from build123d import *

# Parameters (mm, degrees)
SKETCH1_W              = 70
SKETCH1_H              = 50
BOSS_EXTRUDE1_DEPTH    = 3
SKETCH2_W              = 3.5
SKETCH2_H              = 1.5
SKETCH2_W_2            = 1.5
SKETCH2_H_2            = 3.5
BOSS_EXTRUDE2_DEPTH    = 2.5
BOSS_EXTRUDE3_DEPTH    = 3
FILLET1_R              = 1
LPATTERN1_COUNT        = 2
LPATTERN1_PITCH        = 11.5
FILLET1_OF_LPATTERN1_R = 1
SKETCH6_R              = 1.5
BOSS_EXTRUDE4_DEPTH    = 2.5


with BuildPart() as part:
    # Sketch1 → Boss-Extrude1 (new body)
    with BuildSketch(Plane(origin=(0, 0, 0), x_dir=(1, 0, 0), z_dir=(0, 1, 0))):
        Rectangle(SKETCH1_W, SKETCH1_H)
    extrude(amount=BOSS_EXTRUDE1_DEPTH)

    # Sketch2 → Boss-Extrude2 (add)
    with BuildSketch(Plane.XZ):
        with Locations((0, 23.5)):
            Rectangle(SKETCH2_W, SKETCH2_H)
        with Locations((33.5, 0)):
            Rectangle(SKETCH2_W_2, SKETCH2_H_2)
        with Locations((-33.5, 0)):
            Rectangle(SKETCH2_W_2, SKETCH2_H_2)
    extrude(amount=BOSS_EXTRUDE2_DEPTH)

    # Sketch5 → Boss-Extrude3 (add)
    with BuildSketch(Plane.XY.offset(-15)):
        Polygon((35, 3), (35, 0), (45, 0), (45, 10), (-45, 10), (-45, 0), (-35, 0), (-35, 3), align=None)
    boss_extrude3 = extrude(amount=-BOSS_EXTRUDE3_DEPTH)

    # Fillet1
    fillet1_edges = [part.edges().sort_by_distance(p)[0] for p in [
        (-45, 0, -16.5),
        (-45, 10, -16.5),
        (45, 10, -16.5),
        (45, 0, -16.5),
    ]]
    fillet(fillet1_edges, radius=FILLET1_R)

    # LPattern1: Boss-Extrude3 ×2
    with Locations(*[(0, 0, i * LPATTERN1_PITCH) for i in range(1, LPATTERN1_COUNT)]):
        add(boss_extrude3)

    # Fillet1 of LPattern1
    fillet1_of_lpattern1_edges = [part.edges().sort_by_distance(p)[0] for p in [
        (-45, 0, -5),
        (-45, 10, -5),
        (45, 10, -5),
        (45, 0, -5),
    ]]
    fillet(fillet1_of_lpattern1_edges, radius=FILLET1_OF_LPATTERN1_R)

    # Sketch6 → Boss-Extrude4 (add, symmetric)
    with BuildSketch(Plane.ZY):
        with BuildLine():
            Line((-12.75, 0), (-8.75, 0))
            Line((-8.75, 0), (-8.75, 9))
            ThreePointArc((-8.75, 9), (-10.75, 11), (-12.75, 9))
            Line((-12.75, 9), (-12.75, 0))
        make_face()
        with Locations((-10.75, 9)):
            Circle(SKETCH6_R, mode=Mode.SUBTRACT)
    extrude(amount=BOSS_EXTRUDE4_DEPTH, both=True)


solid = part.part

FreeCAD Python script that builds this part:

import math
import FreeCAD as App
import Part
import Sketcher
from FreeCAD import Vector


def edges_at(feature, points):
    """Names of the edges that pass closest to the given points."""
    edges = feature.Shape.Edges
    near = lambda p: min(range(len(edges)), key=lambda i: edges[i].distToShape(Part.Vertex(*p))[0])
    return sorted({f"Edge{near(p) + 1}" for p in points})

doc = App.newDocument("Part")
params = doc.addObject("Spreadsheet::Sheet", "Params")
for row, (alias, value) in enumerate([
    ("sketch1_width", "70 mm"),
    ("sketch1_height", "50 mm"),
    ("pad1_length", "3 mm"),
    ("sketch2_width", "3.5 mm"),
    ("sketch2_width2", "1.5 mm"),
    ("pad2_length", "2.5 mm"),
    ("sketch3_width", "10 mm"),
    ("sketch3_width2", "90 mm"),
    ("sketch3_height", "3 mm"),
    ("pad3_length", "3 mm"),
    ("fillet_radius", "1 mm"),
    ("linearpattern_pitch", "11.5 mm"),
    ("fillet2_radius", "1 mm"),
    ("sketch4_diameter", "3 mm"),
    ("sketch4_radius", "2 mm"),
    ("sketch4_width", "9 mm"),
    ("pad4_length", "5 mm"),
], start=1):
    params.set(f"A{row}", alias)
    params.set(f"B{row}", "=" + value)
    params.setAlias(f"B{row}", alias)

body = doc.addObject("PartDesign::Body", "Body")

# Sketch on XZ plane
sketch1 = doc.addObject("Sketcher::SketchObject", "Sketch")
body.addObject(sketch1)
sketch1.AttachmentSupport = (doc.XZ_Plane, [""])
sketch1.MapMode = "FlatFace"
sketch1.addGeometry(Part.LineSegment(Vector(-35, -25, 0), Vector(-35, 25, 0)), False)
sketch1.addGeometry(Part.LineSegment(Vector(-35, 25, 0), Vector(35, 25, 0)), False)
sketch1.addGeometry(Part.LineSegment(Vector(35, 25, 0), Vector(35, -25, 0)), False)
sketch1.addGeometry(Part.LineSegment(Vector(35, -25, 0), Vector(-35, -25, 0)), False)
sketch1.addConstraint(Sketcher.Constraint("Coincident", 0, 2, 1, 1))
sketch1.addConstraint(Sketcher.Constraint("Coincident", 1, 2, 2, 1))
sketch1.addConstraint(Sketcher.Constraint("Coincident", 2, 2, 3, 1))
sketch1.addConstraint(Sketcher.Constraint("Coincident", 3, 2, 0, 1))
sketch1.addConstraint(Sketcher.Constraint("Vertical", 0))
sketch1.addConstraint(Sketcher.Constraint("Horizontal", 1))
sketch1.addConstraint(Sketcher.Constraint("Vertical", 2))
sketch1.addConstraint(Sketcher.Constraint("Horizontal", 3))
sketch1.addConstraint(Sketcher.Constraint("Symmetric", 0, 2, 2, 2, -1, 1))
sketch1.addConstraint(Sketcher.Constraint("DistanceX", 1, 1, 1, 2, 70.0))
sketch1.addConstraint(Sketcher.Constraint("DistanceY", 0, 1, 0, 2, 50.0))
sketch1.setExpression("Constraints[9]", "Params.sketch1_width")
sketch1.setExpression("Constraints[10]", "Params.sketch1_height")
pad1 = doc.addObject("PartDesign::Pad", "Pad")
body.addObject(pad1)
pad1.Profile = sketch1
pad1.setExpression("Length", "Params.pad1_length")
pad1.Reversed = True

# Sketch on XZ plane
sketch2 = doc.addObject("Sketcher::SketchObject", "Sketch001")
body.addObject(sketch2)
sketch2.AttachmentSupport = (doc.XZ_Plane, [""])
sketch2.MapMode = "FlatFace"
sketch2.addGeometry(Part.LineSegment(Vector(-1.8, 24.2, 0), Vector(-1.8, 22.8, 0)), False)
sketch2.addGeometry(Part.LineSegment(Vector(-1.8, 22.8, 0), Vector(1.8, 22.8, 0)), False)
sketch2.addGeometry(Part.LineSegment(Vector(1.8, 22.8, 0), Vector(1.8, 24.2, 0)), False)
sketch2.addGeometry(Part.LineSegment(Vector(1.8, 24.2, 0), Vector(-1.8, 24.2, 0)), False)
sketch2.addGeometry(Part.LineSegment(Vector(32.8, 1.8, 0), Vector(32.8, -1.8, 0)), False)
sketch2.addGeometry(Part.LineSegment(Vector(32.8, -1.8, 0), Vector(34.2, -1.8, 0)), False)
sketch2.addGeometry(Part.LineSegment(Vector(34.2, -1.8, 0), Vector(34.2, 1.8, 0)), False)
sketch2.addGeometry(Part.LineSegment(Vector(34.2, 1.8, 0), Vector(32.8, 1.8, 0)), False)
sketch2.addGeometry(Part.LineSegment(Vector(-34.2, 1.8, 0), Vector(-34.2, -1.8, 0)), False)
sketch2.addGeometry(Part.LineSegment(Vector(-34.2, -1.8, 0), Vector(-32.8, -1.8, 0)), False)
sketch2.addGeometry(Part.LineSegment(Vector(-32.8, -1.8, 0), Vector(-32.8, 1.8, 0)), False)
sketch2.addGeometry(Part.LineSegment(Vector(-32.8, 1.8, 0), Vector(-34.2, 1.8, 0)), False)
sketch2.addConstraint(Sketcher.Constraint("Coincident", 0, 2, 1, 1))
sketch2.addConstraint(Sketcher.Constraint("Coincident", 1, 2, 2, 1))
sketch2.addConstraint(Sketcher.Constraint("Coincident", 2, 2, 3, 1))
sketch2.addConstraint(Sketcher.Constraint("Coincident", 3, 2, 0, 1))
sketch2.addConstraint(Sketcher.Constraint("Coincident", 4, 2, 5, 1))
sketch2.addConstraint(Sketcher.Constraint("Coincident", 5, 2, 6, 1))
sketch2.addConstraint(Sketcher.Constraint("Coincident", 6, 2, 7, 1))
sketch2.addConstraint(Sketcher.Constraint("Coincident", 7, 2, 4, 1))
sketch2.addConstraint(Sketcher.Constraint("Coincident", 8, 2, 9, 1))
sketch2.addConstraint(Sketcher.Constraint("Coincident", 9, 2, 10, 1))
sketch2.addConstraint(Sketcher.Constraint("Coincident", 10, 2, 11, 1))
sketch2.addConstraint(Sketcher.Constraint("Coincident", 11, 2, 8, 1))
sketch2.addConstraint(Sketcher.Constraint("Vertical", 0))
sketch2.addConstraint(Sketcher.Constraint("Horizontal", 1))
sketch2.addConstraint(Sketcher.Constraint("Vertical", 2))
sketch2.addConstraint(Sketcher.Constraint("Horizontal", 3))
sketch2.addConstraint(Sketcher.Constraint("Vertical", 4))
sketch2.addConstraint(Sketcher.Constraint("Horizontal", 5))
sketch2.addConstraint(Sketcher.Constraint("Vertical", 6))
sketch2.addConstraint(Sketcher.Constraint("Horizontal", 7))
sketch2.addConstraint(Sketcher.Constraint("Vertical", 8))
sketch2.addConstraint(Sketcher.Constraint("Horizontal", 9))
sketch2.addConstraint(Sketcher.Constraint("Vertical", 10))
sketch2.addConstraint(Sketcher.Constraint("Horizontal", 11))
sketch2.addConstraint(Sketcher.Constraint("Symmetric", 6, 2, 8, 2, -1, 1))
sketch2.addConstraint(Sketcher.Constraint("Symmetric", 4, 2, 10, 2, -1, 1))
sketch2.addConstraint(Sketcher.Constraint("Horizontal", 5, 2, 8, 2))
sketch2.addConstraint(Sketcher.Constraint("Equal", 11, 0))
sketch2.addConstraint(Sketcher.Constraint("Equal", 3, 4))
sketch2.addConstraint(Sketcher.Constraint("DistanceX", 1, 1, 1, 2, 3.5))
sketch2.addConstraint(Sketcher.Constraint("DistanceX", 5, 1, 5, 2, 1.5))
sketch2.addConstraint(Sketcher.Constraint("DistanceX", 1, 2, 4, 2, 31.0))
sketch2.addConstraint(Sketcher.Constraint("DistanceY", 4, 2, 2, 2, 26.0))
sketch2.addConstraint(Sketcher.Constraint("DistanceX", 8, 2, 1, 2, 36.0))
sketch2.setExpression("Constraints[29]", "Params.sketch2_width")
sketch2.setExpression("Constraints[30]", "Params.sketch2_width2")
pad2 = doc.addObject("PartDesign::Pad", "Pad001")
body.addObject(pad2)
pad2.Profile = sketch2
pad2.setExpression("Length", "Params.pad2_length")

# Sketch on XY plane
sketch3 = doc.addObject("Sketcher::SketchObject", "Sketch002")
body.addObject(sketch3)
sketch3.AttachmentSupport = (doc.XY_Plane, [""])
sketch3.MapMode = "FlatFace"
sketch3.AttachmentOffset = App.Placement(Vector(0, 0, -15), App.Rotation())
sketch3.addGeometry(Part.LineSegment(Vector(35, 3, 0), Vector(35, 0, 0)), False)
sketch3.addGeometry(Part.LineSegment(Vector(35, 0, 0), Vector(45, 0, 0)), False)
sketch3.addGeometry(Part.LineSegment(Vector(45, 0, 0), Vector(45, 10, 0)), False)
sketch3.addGeometry(Part.LineSegment(Vector(45, 10, 0), Vector(-45, 10, 0)), False)
sketch3.addGeometry(Part.LineSegment(Vector(-45, 10, 0), Vector(-45, 0, 0)), False)
sketch3.addGeometry(Part.LineSegment(Vector(-45, 0, 0), Vector(-35, 0, 0)), False)
sketch3.addGeometry(Part.LineSegment(Vector(-35, 0, 0), Vector(-35, 3, 0)), False)
sketch3.addGeometry(Part.LineSegment(Vector(-35, 3, 0), Vector(35, 3, 0)), False)
sketch3.addConstraint(Sketcher.Constraint("Coincident", 0, 2, 1, 1))
sketch3.addConstraint(Sketcher.Constraint("Coincident", 1, 2, 2, 1))
sketch3.addConstraint(Sketcher.Constraint("Coincident", 2, 2, 3, 1))
sketch3.addConstraint(Sketcher.Constraint("Coincident", 3, 2, 4, 1))
sketch3.addConstraint(Sketcher.Constraint("Coincident", 4, 2, 5, 1))
sketch3.addConstraint(Sketcher.Constraint("Coincident", 5, 2, 6, 1))
sketch3.addConstraint(Sketcher.Constraint("Coincident", 6, 2, 7, 1))
sketch3.addConstraint(Sketcher.Constraint("Coincident", 7, 2, 0, 1))
sketch3.addConstraint(Sketcher.Constraint("Vertical", 0))
sketch3.addConstraint(Sketcher.Constraint("Horizontal", 1))
sketch3.addConstraint(Sketcher.Constraint("Vertical", 2))
sketch3.addConstraint(Sketcher.Constraint("Horizontal", 3))
sketch3.addConstraint(Sketcher.Constraint("Vertical", 4))
sketch3.addConstraint(Sketcher.Constraint("Horizontal", 5))
sketch3.addConstraint(Sketcher.Constraint("Vertical", 6))
sketch3.addConstraint(Sketcher.Constraint("Horizontal", 7))
sketch3.addConstraint(Sketcher.Constraint("Symmetric", 1, 2, 4, 2, -1, 1))
sketch3.addConstraint(Sketcher.Constraint("Symmetric", 0, 2, 5, 2, -2))
sketch3.addConstraint(Sketcher.Constraint("Equal", 5, 2))
sketch3.addConstraint(Sketcher.Constraint("DistanceX", 1, 1, 1, 2, 10.0))
sketch3.addConstraint(Sketcher.Constraint("DistanceX", 3, 2, 3, 1, 90.0))
sketch3.addConstraint(Sketcher.Constraint("DistanceY", 0, 2, 0, 1, 3.0))
sketch3.setExpression("Constraints[19]", "Params.sketch3_width")
sketch3.setExpression("Constraints[20]", "Params.sketch3_width2")
sketch3.setExpression("Constraints[21]", "Params.sketch3_height")
pad3 = doc.addObject("PartDesign::Pad", "Pad002")
body.addObject(pad3)
pad3.Profile = sketch3
pad3.setExpression("Length", "Params.pad3_length")
pad3.Reversed = True
doc.recompute()

fillet = doc.addObject("PartDesign::Fillet", "Fillet")
body.addObject(fillet)
fillet.Base = (pad3, edges_at(pad3, [
    (-45, 0, -16.5),
    (-45, 10, -16.5),
    (45, 10, -16.5),
    (45, 0, -16.5),
]))
fillet.setExpression("Radius", "Params.fillet_radius")
doc.recompute()

linearpattern = doc.addObject("PartDesign::LinearPattern", "LinearPattern")
body.addObject(linearpattern)
linearpattern.Originals = [pad3]
linearpattern.Direction = (doc.Z_Axis, [""])
linearpattern.Mode = "offset"
linearpattern.setExpression("Offset", "Params.linearpattern_pitch")
linearpattern.Occurrences = 2
body.Tip = linearpattern
doc.recompute()

fillet2 = doc.addObject("PartDesign::Fillet", "Fillet001")
body.addObject(fillet2)
fillet2.Base = (linearpattern, edges_at(linearpattern, [
    (-45, 0, -5),
    (-45, 10, -5),
    (45, 10, -5),
    (45, 0, -5),
]))
fillet2.setExpression("Radius", "Params.fillet2_radius")

# Sketch on YZ plane
sketch4 = doc.addObject("Sketcher::SketchObject", "Sketch003")
body.addObject(sketch4)
sketch4.AttachmentSupport = (doc.YZ_Plane, [""])
sketch4.MapMode = "FlatFace"
sketch4.addGeometry(Part.LineSegment(Vector(0, -12.8, 0), Vector(0, -8.8, 0)), False)
sketch4.addGeometry(Part.LineSegment(Vector(0, -8.8, 0), Vector(9, -8.8, 0)), False)
sketch4.addGeometry(Part.ArcOfCircle(Part.Circle(Vector(9, -10.8, 0), Vector(0, 0, 1), 2), math.radians(-90), math.radians(90)), False)
sketch4.addGeometry(Part.LineSegment(Vector(9, -12.8, 0), Vector(0, -12.8, 0)), False)
sketch4.addGeometry(Part.Circle(Vector(9, -10.8, 0), Vector(0, 0, 1), 1.5), False)
sketch4.addConstraint(Sketcher.Constraint("Coincident", 0, 2, 1, 1))
sketch4.addConstraint(Sketcher.Constraint("Tangent", 1, 2, 2, 2))
sketch4.addConstraint(Sketcher.Constraint("Tangent", 2, 1, 3, 1))
sketch4.addConstraint(Sketcher.Constraint("Coincident", 3, 2, 0, 1))
sketch4.addConstraint(Sketcher.Constraint("Vertical", 0))
sketch4.addConstraint(Sketcher.Constraint("Horizontal", 1))
sketch4.addConstraint(Sketcher.Constraint("Horizontal", 3))
sketch4.addConstraint(Sketcher.Constraint("Coincident", 4, 3, 2, 3))
sketch4.addConstraint(Sketcher.Constraint("PointOnObject", 0, 2, -2))
sketch4.addConstraint(Sketcher.Constraint("Diameter", 4, 3.0))
sketch4.addConstraint(Sketcher.Constraint("Radius", 2, 2.0))
sketch4.addConstraint(Sketcher.Constraint("DistanceX", 1, 1, 1, 2, 9.0))
sketch4.addConstraint(Sketcher.Constraint("DistanceY", 2, 3, -1, 1, 10.75))
sketch4.setExpression("Constraints[9]", "Params.sketch4_diameter")
sketch4.setExpression("Constraints[10]", "Params.sketch4_radius")
sketch4.setExpression("Constraints[11]", "Params.sketch4_width")
pad4 = doc.addObject("PartDesign::Pad", "Pad003")
body.addObject(pad4)
pad4.Profile = sketch4
pad4.setExpression("Length", "Params.pad4_length")
pad4.Midplane = True

doc.recompute()
